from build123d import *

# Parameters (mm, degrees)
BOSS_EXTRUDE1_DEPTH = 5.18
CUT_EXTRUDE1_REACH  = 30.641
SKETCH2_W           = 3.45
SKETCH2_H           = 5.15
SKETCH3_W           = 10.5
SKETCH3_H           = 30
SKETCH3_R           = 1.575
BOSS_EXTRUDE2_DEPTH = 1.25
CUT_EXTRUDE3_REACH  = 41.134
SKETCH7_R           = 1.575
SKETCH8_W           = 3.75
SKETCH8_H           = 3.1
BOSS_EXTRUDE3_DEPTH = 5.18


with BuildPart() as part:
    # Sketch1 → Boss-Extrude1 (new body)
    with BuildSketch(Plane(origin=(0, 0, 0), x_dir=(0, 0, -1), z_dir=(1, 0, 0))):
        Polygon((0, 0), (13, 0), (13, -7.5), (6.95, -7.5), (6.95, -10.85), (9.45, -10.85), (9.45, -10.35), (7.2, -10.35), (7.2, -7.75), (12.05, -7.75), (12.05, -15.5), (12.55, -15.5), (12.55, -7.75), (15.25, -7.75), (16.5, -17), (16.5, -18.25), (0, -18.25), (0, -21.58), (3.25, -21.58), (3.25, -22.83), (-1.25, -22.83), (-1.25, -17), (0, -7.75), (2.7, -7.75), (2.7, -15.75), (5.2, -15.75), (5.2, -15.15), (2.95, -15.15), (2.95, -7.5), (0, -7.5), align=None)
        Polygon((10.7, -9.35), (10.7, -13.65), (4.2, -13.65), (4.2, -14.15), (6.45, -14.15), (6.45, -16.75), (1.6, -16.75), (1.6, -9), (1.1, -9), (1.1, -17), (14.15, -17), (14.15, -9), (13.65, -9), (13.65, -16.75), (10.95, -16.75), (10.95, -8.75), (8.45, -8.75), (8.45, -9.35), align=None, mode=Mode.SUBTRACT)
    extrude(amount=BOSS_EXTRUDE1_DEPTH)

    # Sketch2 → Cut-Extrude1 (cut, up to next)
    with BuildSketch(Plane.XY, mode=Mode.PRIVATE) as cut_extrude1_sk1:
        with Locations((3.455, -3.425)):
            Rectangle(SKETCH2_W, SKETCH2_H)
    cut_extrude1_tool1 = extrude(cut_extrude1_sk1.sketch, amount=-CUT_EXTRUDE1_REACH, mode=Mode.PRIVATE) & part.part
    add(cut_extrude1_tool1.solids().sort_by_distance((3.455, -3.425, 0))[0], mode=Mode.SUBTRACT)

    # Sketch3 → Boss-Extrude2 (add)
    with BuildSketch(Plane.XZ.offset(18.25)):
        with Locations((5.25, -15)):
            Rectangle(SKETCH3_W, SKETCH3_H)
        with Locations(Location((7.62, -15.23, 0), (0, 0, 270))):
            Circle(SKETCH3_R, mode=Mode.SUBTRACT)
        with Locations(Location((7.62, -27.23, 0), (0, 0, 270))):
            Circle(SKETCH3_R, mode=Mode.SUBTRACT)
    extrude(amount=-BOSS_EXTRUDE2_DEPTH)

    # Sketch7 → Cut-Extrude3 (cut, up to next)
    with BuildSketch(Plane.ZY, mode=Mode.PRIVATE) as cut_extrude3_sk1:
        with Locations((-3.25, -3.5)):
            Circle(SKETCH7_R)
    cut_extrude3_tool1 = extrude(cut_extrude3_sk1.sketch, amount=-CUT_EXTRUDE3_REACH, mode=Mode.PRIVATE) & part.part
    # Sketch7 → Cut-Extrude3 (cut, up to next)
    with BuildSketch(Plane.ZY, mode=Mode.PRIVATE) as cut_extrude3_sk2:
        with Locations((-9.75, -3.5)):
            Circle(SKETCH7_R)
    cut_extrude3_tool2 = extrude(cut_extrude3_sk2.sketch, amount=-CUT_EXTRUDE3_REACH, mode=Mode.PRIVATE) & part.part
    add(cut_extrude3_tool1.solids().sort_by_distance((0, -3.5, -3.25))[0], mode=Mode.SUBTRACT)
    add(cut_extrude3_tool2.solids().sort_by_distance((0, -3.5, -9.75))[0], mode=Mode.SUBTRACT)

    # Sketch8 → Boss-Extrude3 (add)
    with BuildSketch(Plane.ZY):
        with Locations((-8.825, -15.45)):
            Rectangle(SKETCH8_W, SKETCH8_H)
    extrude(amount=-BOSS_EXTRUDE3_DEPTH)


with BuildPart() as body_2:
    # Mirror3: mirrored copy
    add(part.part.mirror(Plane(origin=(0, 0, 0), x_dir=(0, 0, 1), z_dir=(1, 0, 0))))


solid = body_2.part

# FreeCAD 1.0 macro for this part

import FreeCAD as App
import Part
import Sketcher
from FreeCAD import Vector
Q = App.Units.Quantity


def add_polygon(sketch, points):
    """Adds a closed chain of lines whose ends are joined by coincident constraints."""
    first, n = sketch.GeometryCount, len(points)
    for a, b in zip(points, points[1:] + points[:1]):
        sketch.addGeometry(Part.LineSegment(App.Vector(*a, 0), App.Vector(*b, 0)), False)
    for i in range(n):
        sketch.addConstraint(Sketcher.Constraint("Coincident", first + i, 2, first + (i + 1) % n, 1))

doc = App.newDocument("Part")
body = doc.addObject("PartDesign::Body", "Body")

# Sketch on YZ plane
sketch1 = body.newObject("Sketcher::SketchObject", "Sketch")
sketch1.AttachmentSupport = (doc.getObject("YZ_Plane"), [""])
sketch1.MapMode = "FlatFace"
add_polygon(sketch1, [(0, -13), (0, 0), (-7.5, 0), (-7.5, -3), (-15.2, -3), (-15.2, -5.2), (-15.8, -5.2), (-15.8, -2.7), (-7.8, -2.7), (-7.8, 0), (-17, 1.2), (-22.8, 1.2), (-22.8, -3.2), (-21.6, -3.2), (-21.6, 0), (-18.2, 0), (-18.2, -16.5), (-17, -16.5), (-7.8, -15.2), (-7.8, -12.6), (-15.5, -12.6), (-15.5, -12.1), (-7.8, -12.1), (-7.8, -7.2), (-10.3, -7.2), (-10.3, -9.4), (-10.8, -9.4), (-10.8, -7), (-7.5, -7), (-7.5, -13)])  # lines 0-29
add_polygon(sketch1, [(-9.3, -10.7), (-9.3, -8.4), (-8.8, -8.4), (-8.8, -10.9), (-16.8, -10.9), (-16.8, -13.7), (-9, -13.7), (-9, -14.2), (-17, -14.2), (-17, -1.1), (-9, -1.1), (-9, -1.6), (-16.8, -1.6), (-16.8, -6.5), (-14.2, -6.5), (-14.2, -4.2), (-13.7, -4.2), (-13.7, -10.7)])  # lines 30-47
sketch1.addConstraint([
    Sketcher.Constraint("Vertical", 0),
    Sketcher.Constraint("Horizontal", 1),
    Sketcher.Constraint("Vertical", 2),
    Sketcher.Constraint("Horizontal", 3),
    Sketcher.Constraint("Vertical", 4),
    Sketcher.Constraint("Horizontal", 5),
    Sketcher.Constraint("Vertical", 6),
    Sketcher.Constraint("Horizontal", 7),
    Sketcher.Constraint("Vertical", 8),
    Sketcher.Constraint("Horizontal", 10),
    Sketcher.Constraint("Vertical", 11),
    Sketcher.Constraint("Horizontal", 12),
    Sketcher.Constraint("Vertical", 13),
    Sketcher.Constraint("Horizontal", 14),
    Sketcher.Constraint("Vertical", 15),
    Sketcher.Constraint("Horizontal", 16),
    Sketcher.Constraint("Vertical", 18),
    Sketcher.Constraint("Horizontal", 19),
    Sketcher.Constraint("Vertical", 20),
    Sketcher.Constraint("Horizontal", 21),
    Sketcher.Constraint("Vertical", 22),
    Sketcher.Constraint("Horizontal", 23),
    Sketcher.Constraint("Vertical", 24),
    Sketcher.Constraint("Horizontal", 25),
    Sketcher.Constraint("Vertical", 26),
    Sketcher.Constraint("Horizontal", 27),
    Sketcher.Constraint("Vertical", 28),
    Sketcher.Constraint("Horizontal", 29),
    Sketcher.Constraint("Vertical", 30),
    Sketcher.Constraint("Horizontal", 31),
    Sketcher.Constraint("Vertical", 32),
    Sketcher.Constraint("Horizontal", 33),
    Sketcher.Constraint("Vertical", 34),
    Sketcher.Constraint("Horizontal", 35),
    Sketcher.Constraint("Vertical", 36),
    Sketcher.Constraint("Horizontal", 37),
    Sketcher.Constraint("Vertical", 38),
    Sketcher.Constraint("Horizontal", 39),
    Sketcher.Constraint("Vertical", 40),
    Sketcher.Constraint("Horizontal", 41),
    Sketcher.Constraint("Vertical", 42),
    Sketcher.Constraint("Horizontal", 43),
    Sketcher.Constraint("Vertical", 44),
    Sketcher.Constraint("Horizontal", 45),
    Sketcher.Constraint("Vertical", 46),
    Sketcher.Constraint("Horizontal", 47),
    Sketcher.Constraint("Coincident", 0, 2, -1, 1),
    Sketcher.Constraint("PointOnObject", 8, 2, -1),
    Sketcher.Constraint("PointOnObject", 13, 2, -1),
    Sketcher.Constraint("Vertical", 9, 2, 16, 2),
    Sketcher.Constraint("Vertical", 8, 2, 17, 2),
    Sketcher.Constraint("Vertical", 18, 2, 21, 2),
    Sketcher.Constraint("Vertical", 2, 2, 27, 2),
    Sketcher.Constraint("Vertical", 16, 2, 37, 2),
    Sketcher.Constraint("Vertical", 36, 2, 39, 2),
    Sketcher.Constraint("Vertical", 34, 2, 41, 2),
    Sketcher.Constraint("Equal", 12, 16),
    Sketcher.Constraint("Equal", 5, 31),
    Sketcher.Constraint("Equal", 7, 33),
    Sketcher.Constraint("Equal", 21, 35),
    Sketcher.Constraint("Equal", 33, 37),
    Sketcher.Constraint("Equal", 23, 43),
    Sketcher.Constraint("Equal", 25, 45),
    Sketcher.Constraint("Equal", 8, 18),
    Sketcher.Constraint("Equal", 45, 20),
    Sketcher.Constraint("Equal", 4, 24),
    Sketcher.Constraint("Equal", 6, 26),
    Sketcher.Constraint("Equal", 24, 30),
    Sketcher.Constraint("Equal", 26, 32),
    Sketcher.Constraint("Equal", 18, 34),
    Sketcher.Constraint("Equal", 20, 36),
    Sketcher.Constraint("Equal", 36, 40),
    Sketcher.Constraint("Equal", 22, 42),
    Sketcher.Constraint("Equal", 30, 44),
    Sketcher.Constraint("Equal", 9, 17),
    Sketcher.Constraint("DistanceX", 7, 1, 7, 2, Q("8 mm")),
    Sketcher.Constraint("DistanceY", 0, 1, 0, 2, Q("13 mm")),
    Sketcher.Constraint("DistanceX", 1, 2, 1, 1, Q("7.5 mm")),
    Sketcher.Constraint("DistanceX", 5, 2, 5, 1, Q("0.6 mm")),
    Sketcher.Constraint("DistanceX", 23, 2, 23, 1, Q("2.6 mm")),
    Sketcher.Constraint("DistanceX", 25, 2, 25, 1, Q("0.5 mm")),
    Sketcher.Constraint("DistanceY", 6, 1, 6, 2, Q("2.5 mm")),
    Sketcher.Constraint("DistanceY", 8, 1, 8, 2, Q("2.7 mm")),
    Sketcher.Constraint("DistanceY", 11, 2, 11, 1, Q("4.5 mm")),
    Sketcher.Constraint("DistanceY", 15, 2, 15, 1, Q("16.5 mm")),
    Sketcher.Constraint("DistanceY", 46, 2, 46, 1, Q("6.5 mm")),
    Sketcher.Constraint("DistanceX", 9, 2, -1, 1, Q("17 mm")),
    Sketcher.Constraint("DistanceY", 23, 2, 4, 2, Q("2 mm")),
    Sketcher.Constraint("DistanceY", 27, 2, 2, 2, Q("4 mm")),
    Sketcher.Constraint("DistanceX", 24, 2, 30, 2, Q("1 mm")),
    Sketcher.Constraint("DistanceY", 24, 2, 30, 2, Q("1 mm")),
    Sketcher.Constraint("DistanceX", 3, 2, 3, 1, Q("7.65 mm")),
    Sketcher.Constraint("DistanceX", 10, 2, 10, 1, Q("5.83 mm")),
    Sketcher.Constraint("DistanceX", 12, 1, 12, 2, Q("1.25 mm")),
    Sketcher.Constraint("DistanceY", 13, 1, 13, 2, Q("3.25 mm")),
])
pad1 = body.newObject("PartDesign::Pad", "Pad")
pad1.Profile = sketch1
pad1.Length = 5.18

# Sketch on XY plane
sketch2 = body.newObject("Sketcher::SketchObject", "Sketch001")
sketch2.AttachmentSupport = (doc.getObject("XY_Plane"), [""])
sketch2.MapMode = "FlatFace"
add_polygon(sketch2, [(1.7, -0.8), (1.7, -6), (5.2, -6), (5.2, -0.8)])  # lines 0-3
sketch2.addConstraint([
    Sketcher.Constraint("Vertical", 0),
    Sketcher.Constraint("Horizontal", 1),
    Sketcher.Constraint("Vertical", 2),
    Sketcher.Constraint("Horizontal", 3),
    Sketcher.Constraint("DistanceY", 0, 2, -1, 1, Q("6 mm")),
    Sketcher.Constraint("DistanceX", 1, 1, 1, 2, Q("3.45 mm")),
    Sketcher.Constraint("DistanceY", 0, 2, 0, 1, Q("5.15 mm")),
    Sketcher.Constraint("DistanceX", -1, 1, 0, 2, Q("1.73 mm")),
])
pocket1 = body.newObject("PartDesign::Pocket", "Pocket")
pocket1.Profile = sketch2
pocket1.Type = "UpToFirst"

# Sketch on XZ plane
sketch3 = body.newObject("Sketcher::SketchObject", "Sketch002")
sketch3.AttachmentSupport = (doc.getObject("XZ_Plane"), [""])
sketch3.MapMode = "FlatFace"
sketch3.AttachmentOffset = App.Placement(Vector(0, 0, 18.25), App.Rotation())
add_polygon(sketch3, [(0, 0), (0, -30), (10.5, -30), (10.5, 0)])  # lines 0-3
sketch3.addGeometry(Part.Circle(Vector(7.6, -27.2, 0), Vector(0, 0, 1), 1.6), False)  # 4
sketch3.addGeometry(Part.Circle(Vector(7.6, -15.2, 0), Vector(0, 0, 1), 1.6), False)  # 5
sketch3.addConstraint([
    Sketcher.Constraint("Vertical", 0),
    Sketcher.Constraint("Horizontal", 1),
    Sketcher.Constraint("Vertical", 2),
    Sketcher.Constraint("Horizontal", 3),
    Sketcher.Constraint("Coincident", 3, 2, -1, 1),
    Sketcher.Constraint("Equal", 4, 5),
    Sketcher.Constraint("Vertical", 4, 3, 5, 3),
    Sketcher.Constraint("Diameter", 4, Q("3.15 mm")),
    Sketcher.Constraint("DistanceY", 0, 2, 0, 1, Q("30 mm")),
    Sketcher.Constraint("DistanceX", 1, 1, 1, 2, Q("10.5 mm")),
    Sketcher.Constraint("DistanceY", 4, 3, 5, 3, Q("12 mm")),
    Sketcher.Constraint("DistanceX", -1, 1, 4, 3, Q("7.62 mm")),
    Sketcher.Constraint("DistanceY", 4, 3, -1, 1, Q("27.23 mm")),
])
pad2 = body.newObject("PartDesign::Pad", "Pad001")
pad2.Profile = sketch3
pad2.Length = 1.25
pad2.Reversed = True

# Sketch on YZ plane
sketch4 = body.newObject("Sketcher::SketchObject", "Sketch003")
sketch4.AttachmentSupport = (doc.getObject("YZ_Plane"), [""])
sketch4.MapMode = "FlatFace"
sketch4.addGeometry(Part.Circle(Vector(-3.5, -3.2, 0), Vector(0, 0, 1), 1.6), False)
sketch4.addConstraint([
    Sketcher.Constraint("Diameter", 0, Q("3.15 mm")),
    Sketcher.Constraint("DistanceX", 0, 3, -1, 1, Q("3.5 mm")),
    Sketcher.Constraint("DistanceY", 0, 3, -1, 1, Q("3.25 mm")),
])
pocket2 = body.newObject("PartDesign::Pocket", "Pocket001")
pocket2.Profile = sketch4
pocket2.Type = "UpToFirst"
pocket2.Reversed = True

# Sketch on YZ plane
sketch5 = body.newObject("Sketcher::SketchObject", "Sketch004")
sketch5.AttachmentSupport = (doc.getObject("YZ_Plane"), [""])
sketch5.MapMode = "FlatFace"
sketch5.addGeometry(Part.Circle(Vector(-3.5, -9.8, 0), Vector(0, 0, 1), 1.6), False)
sketch5.addConstraint([
    Sketcher.Constraint("Diameter", 0, Q("3.15 mm")),
    Sketcher.Constraint("DistanceX", 0, 3, -1, 1, Q("3.5 mm")),
    Sketcher.Constraint("DistanceY", 0, 3, -1, 1, Q("9.75 mm")),
])
pocket3 = body.newObject("PartDesign::Pocket", "Pocket002")
pocket3.Profile = sketch5
pocket3.Type = "UpToFirst"
pocket3.Reversed = True

# Sketch on YZ plane
sketch6 = body.newObject("Sketcher::SketchObject", "Sketch005")
sketch6.AttachmentSupport = (doc.getObject("YZ_Plane"), [""])
sketch6.MapMode = "FlatFace"
add_polygon(sketch6, [(-13.9, -10.7), (-17, -10.7), (-17, -7), (-13.9, -7)])  # lines 0-3
sketch6.addConstraint([
    Sketcher.Constraint("Horizontal", 0),
    Sketcher.Constraint("Vertical", 1),
    Sketcher.Constraint("Horizontal", 2),
    Sketcher.Constraint("Vertical", 3),
    Sketcher.Constraint("DistanceX", 0, 2, 0, 1, Q("3.1 mm")),
    Sketcher.Constraint("DistanceX", 0, 2, -1, 1, Q("17 mm")),
    Sketcher.Constraint("DistanceY", 1, 1, 1, 2, Q("3.75 mm")),
    Sketcher.Constraint("DistanceY", 0, 2, -1, 1, Q("10.7 mm")),
])
pad3 = body.newObject("PartDesign::Pad", "Pad002")
pad3.Profile = sketch6
pad3.Length = 5.18
body2 = doc.addObject("PartDesign::Body", "Body001")
doc.recompute()

mirroring = doc.addObject("Part::Mirroring", "Mirroring")
mirroring.Source = body
mirroring.Base = Vector(0, 0, 0)
mirroring.Normal = Vector(1, 0, 0)
body2.BaseFeature = mirroring
doc.recompute()
body.Visibility = False
mirroring.Visibility = False

doc.recompute()
